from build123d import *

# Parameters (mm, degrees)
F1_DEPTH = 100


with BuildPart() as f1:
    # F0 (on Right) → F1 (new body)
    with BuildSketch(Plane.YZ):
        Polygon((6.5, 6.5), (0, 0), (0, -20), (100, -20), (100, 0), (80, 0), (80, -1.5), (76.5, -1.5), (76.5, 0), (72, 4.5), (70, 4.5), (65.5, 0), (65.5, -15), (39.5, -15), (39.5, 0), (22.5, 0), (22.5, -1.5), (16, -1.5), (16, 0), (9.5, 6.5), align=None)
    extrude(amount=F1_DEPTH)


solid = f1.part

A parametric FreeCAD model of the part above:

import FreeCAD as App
import Part
import Sketcher
from FreeCAD import Vector
Q = App.Units.Quantity


def add_polygon(sketch, points):
    """Adds a closed chain of lines whose ends are joined by coincident constraints."""
    first, n = sketch.GeometryCount, len(points)
    for a, b in zip(points, points[1:] + points[:1]):
        sketch.addGeometry(Part.LineSegment(App.Vector(*a, 0), App.Vector(*b, 0)), False)
    for i in range(n):
        sketch.addConstraint(Sketcher.Constraint("Coincident", first + i, 2, first + (i + 1) % n, 1))

doc = App.newDocument("Part")
body = doc.addObject("PartDesign::Body", "Body")

# Sketch on YZ plane
sketch1 = body.newObject("Sketcher::SketchObject", "Sketch")
sketch1.AttachmentSupport = (doc.getObject("YZ_Plane"), [""])
sketch1.MapMode = "FlatFace"
add_polygon(sketch1, [(6.5, 6.5), (0, 0), (0, -20), (100, -20), (100, 0), (80, 0), (80, -1.5), (76.5, -1.5), (76.5, 0), (72, 4.5), (70, 4.5), (65.5, 0), (65.5, -15), (39.5, -15), (39.5, 0), (22.5, 0), (22.5, -1.5), (16, -1.5), (16, 0), (9.5, 6.5)])  # lines 0-19
sketch1.addConstraint(Sketcher.Constraint("Vertical", 1))
sketch1.addConstraint(Sketcher.Constraint("Horizontal", 2))
sketch1.addConstraint(Sketcher.Constraint("Vertical", 3))
sketch1.addConstraint(Sketcher.Constraint("Horizontal", 4))
sketch1.addConstraint(Sketcher.Constraint("Vertical", 5))
sketch1.addConstraint(Sketcher.Constraint("Horizontal", 6))
sketch1.addConstraint(Sketcher.Constraint("Vertical", 7))
sketch1.addConstraint(Sketcher.Constraint("Horizontal", 9))
sketch1.addConstraint(Sketcher.Constraint("Vertical", 11))
sketch1.addConstraint(Sketcher.Constraint("Horizontal", 12))
sketch1.addConstraint(Sketcher.Constraint("Vertical", 13))
sketch1.addConstraint(Sketcher.Constraint("Horizontal", 14))
sketch1.addConstraint(Sketcher.Constraint("Vertical", 15))
sketch1.addConstraint(Sketcher.Constraint("Horizontal", 16))
sketch1.addConstraint(Sketcher.Constraint("Vertical", 17))
sketch1.addConstraint(Sketcher.Constraint("Horizontal", 19))
sketch1.addConstraint(Sketcher.Constraint("Coincident", 0, 2, -1, 1))
sketch1.addConstraint(Sketcher.Constraint("PointOnObject", 3, 2, -1))
sketch1.addConstraint(Sketcher.Constraint("PointOnObject", 7, 2, -1))
sketch1.addConstraint(Sketcher.Constraint("PointOnObject", 10, 2, -1))
sketch1.addConstraint(Sketcher.Constraint("PointOnObject", 13, 2, -1))
sketch1.addConstraint(Sketcher.Constraint("PointOnObject", 17, 2, -1))
sketch1.addConstraint(Sketcher.Constraint("Perpendicular", 0, 8))
sketch1.addConstraint(Sketcher.Constraint("Perpendicular", 8, 10))
sketch1.addConstraint(Sketcher.Constraint("Perpendicular", 10, 18))
sketch1.addConstraint(Sketcher.Constraint("Horizontal", 6, 2, 15, 2))
sketch1.addConstraint(Sketcher.Constraint("Equal", 4, 1))
sketch1.addConstraint(Sketcher.Constraint("Equal", 8, 10))
sketch1.addConstraint(Sketcher.Constraint("DistanceX", 2, 1, 2, 2, Q("100 mm")))
sketch1.addConstraint(Sketcher.Constraint("DistanceX", 4, 2, 4, 1, Q("20 mm")))
sketch1.addConstraint(Sketcher.Constraint("DistanceX", 9, 2, 9, 1, Q("2 mm")))
sketch1.addConstraint(Sketcher.Constraint("DistanceX", 12, 2, 12, 1, Q("26 mm")))
sketch1.addConstraint(Sketcher.Constraint("DistanceX", 14, 2, 14, 1, Q("17 mm")))
sketch1.addConstraint(Sketcher.Constraint("DistanceX", 19, 2, 19, 1, Q("3 mm")))
sketch1.addConstraint(Sketcher.Constraint("DistanceY", 11, 2, 11, 1, Q("15 mm")))
sketch1.addConstraint(Sketcher.Constraint("DistanceX", 6, 2, 6, 1, Q("3.5 mm")))
sketch1.addConstraint(Sketcher.Constraint("DistanceX", 16, 2, 16, 1, Q("6.5 mm")))
sketch1.addConstraint(Sketcher.Constraint("DistanceY", 5, 2, 5, 1, Q("1.5 mm")))
sketch1.addConstraint(Sketcher.Constraint("DistanceX", -1, 1, 8, 2, Q("72 mm")))
pad1 = body.newObject("PartDesign::Pad", "Pad")
pad1.Profile = sketch1
pad1.Length = 100

doc.recompute()
